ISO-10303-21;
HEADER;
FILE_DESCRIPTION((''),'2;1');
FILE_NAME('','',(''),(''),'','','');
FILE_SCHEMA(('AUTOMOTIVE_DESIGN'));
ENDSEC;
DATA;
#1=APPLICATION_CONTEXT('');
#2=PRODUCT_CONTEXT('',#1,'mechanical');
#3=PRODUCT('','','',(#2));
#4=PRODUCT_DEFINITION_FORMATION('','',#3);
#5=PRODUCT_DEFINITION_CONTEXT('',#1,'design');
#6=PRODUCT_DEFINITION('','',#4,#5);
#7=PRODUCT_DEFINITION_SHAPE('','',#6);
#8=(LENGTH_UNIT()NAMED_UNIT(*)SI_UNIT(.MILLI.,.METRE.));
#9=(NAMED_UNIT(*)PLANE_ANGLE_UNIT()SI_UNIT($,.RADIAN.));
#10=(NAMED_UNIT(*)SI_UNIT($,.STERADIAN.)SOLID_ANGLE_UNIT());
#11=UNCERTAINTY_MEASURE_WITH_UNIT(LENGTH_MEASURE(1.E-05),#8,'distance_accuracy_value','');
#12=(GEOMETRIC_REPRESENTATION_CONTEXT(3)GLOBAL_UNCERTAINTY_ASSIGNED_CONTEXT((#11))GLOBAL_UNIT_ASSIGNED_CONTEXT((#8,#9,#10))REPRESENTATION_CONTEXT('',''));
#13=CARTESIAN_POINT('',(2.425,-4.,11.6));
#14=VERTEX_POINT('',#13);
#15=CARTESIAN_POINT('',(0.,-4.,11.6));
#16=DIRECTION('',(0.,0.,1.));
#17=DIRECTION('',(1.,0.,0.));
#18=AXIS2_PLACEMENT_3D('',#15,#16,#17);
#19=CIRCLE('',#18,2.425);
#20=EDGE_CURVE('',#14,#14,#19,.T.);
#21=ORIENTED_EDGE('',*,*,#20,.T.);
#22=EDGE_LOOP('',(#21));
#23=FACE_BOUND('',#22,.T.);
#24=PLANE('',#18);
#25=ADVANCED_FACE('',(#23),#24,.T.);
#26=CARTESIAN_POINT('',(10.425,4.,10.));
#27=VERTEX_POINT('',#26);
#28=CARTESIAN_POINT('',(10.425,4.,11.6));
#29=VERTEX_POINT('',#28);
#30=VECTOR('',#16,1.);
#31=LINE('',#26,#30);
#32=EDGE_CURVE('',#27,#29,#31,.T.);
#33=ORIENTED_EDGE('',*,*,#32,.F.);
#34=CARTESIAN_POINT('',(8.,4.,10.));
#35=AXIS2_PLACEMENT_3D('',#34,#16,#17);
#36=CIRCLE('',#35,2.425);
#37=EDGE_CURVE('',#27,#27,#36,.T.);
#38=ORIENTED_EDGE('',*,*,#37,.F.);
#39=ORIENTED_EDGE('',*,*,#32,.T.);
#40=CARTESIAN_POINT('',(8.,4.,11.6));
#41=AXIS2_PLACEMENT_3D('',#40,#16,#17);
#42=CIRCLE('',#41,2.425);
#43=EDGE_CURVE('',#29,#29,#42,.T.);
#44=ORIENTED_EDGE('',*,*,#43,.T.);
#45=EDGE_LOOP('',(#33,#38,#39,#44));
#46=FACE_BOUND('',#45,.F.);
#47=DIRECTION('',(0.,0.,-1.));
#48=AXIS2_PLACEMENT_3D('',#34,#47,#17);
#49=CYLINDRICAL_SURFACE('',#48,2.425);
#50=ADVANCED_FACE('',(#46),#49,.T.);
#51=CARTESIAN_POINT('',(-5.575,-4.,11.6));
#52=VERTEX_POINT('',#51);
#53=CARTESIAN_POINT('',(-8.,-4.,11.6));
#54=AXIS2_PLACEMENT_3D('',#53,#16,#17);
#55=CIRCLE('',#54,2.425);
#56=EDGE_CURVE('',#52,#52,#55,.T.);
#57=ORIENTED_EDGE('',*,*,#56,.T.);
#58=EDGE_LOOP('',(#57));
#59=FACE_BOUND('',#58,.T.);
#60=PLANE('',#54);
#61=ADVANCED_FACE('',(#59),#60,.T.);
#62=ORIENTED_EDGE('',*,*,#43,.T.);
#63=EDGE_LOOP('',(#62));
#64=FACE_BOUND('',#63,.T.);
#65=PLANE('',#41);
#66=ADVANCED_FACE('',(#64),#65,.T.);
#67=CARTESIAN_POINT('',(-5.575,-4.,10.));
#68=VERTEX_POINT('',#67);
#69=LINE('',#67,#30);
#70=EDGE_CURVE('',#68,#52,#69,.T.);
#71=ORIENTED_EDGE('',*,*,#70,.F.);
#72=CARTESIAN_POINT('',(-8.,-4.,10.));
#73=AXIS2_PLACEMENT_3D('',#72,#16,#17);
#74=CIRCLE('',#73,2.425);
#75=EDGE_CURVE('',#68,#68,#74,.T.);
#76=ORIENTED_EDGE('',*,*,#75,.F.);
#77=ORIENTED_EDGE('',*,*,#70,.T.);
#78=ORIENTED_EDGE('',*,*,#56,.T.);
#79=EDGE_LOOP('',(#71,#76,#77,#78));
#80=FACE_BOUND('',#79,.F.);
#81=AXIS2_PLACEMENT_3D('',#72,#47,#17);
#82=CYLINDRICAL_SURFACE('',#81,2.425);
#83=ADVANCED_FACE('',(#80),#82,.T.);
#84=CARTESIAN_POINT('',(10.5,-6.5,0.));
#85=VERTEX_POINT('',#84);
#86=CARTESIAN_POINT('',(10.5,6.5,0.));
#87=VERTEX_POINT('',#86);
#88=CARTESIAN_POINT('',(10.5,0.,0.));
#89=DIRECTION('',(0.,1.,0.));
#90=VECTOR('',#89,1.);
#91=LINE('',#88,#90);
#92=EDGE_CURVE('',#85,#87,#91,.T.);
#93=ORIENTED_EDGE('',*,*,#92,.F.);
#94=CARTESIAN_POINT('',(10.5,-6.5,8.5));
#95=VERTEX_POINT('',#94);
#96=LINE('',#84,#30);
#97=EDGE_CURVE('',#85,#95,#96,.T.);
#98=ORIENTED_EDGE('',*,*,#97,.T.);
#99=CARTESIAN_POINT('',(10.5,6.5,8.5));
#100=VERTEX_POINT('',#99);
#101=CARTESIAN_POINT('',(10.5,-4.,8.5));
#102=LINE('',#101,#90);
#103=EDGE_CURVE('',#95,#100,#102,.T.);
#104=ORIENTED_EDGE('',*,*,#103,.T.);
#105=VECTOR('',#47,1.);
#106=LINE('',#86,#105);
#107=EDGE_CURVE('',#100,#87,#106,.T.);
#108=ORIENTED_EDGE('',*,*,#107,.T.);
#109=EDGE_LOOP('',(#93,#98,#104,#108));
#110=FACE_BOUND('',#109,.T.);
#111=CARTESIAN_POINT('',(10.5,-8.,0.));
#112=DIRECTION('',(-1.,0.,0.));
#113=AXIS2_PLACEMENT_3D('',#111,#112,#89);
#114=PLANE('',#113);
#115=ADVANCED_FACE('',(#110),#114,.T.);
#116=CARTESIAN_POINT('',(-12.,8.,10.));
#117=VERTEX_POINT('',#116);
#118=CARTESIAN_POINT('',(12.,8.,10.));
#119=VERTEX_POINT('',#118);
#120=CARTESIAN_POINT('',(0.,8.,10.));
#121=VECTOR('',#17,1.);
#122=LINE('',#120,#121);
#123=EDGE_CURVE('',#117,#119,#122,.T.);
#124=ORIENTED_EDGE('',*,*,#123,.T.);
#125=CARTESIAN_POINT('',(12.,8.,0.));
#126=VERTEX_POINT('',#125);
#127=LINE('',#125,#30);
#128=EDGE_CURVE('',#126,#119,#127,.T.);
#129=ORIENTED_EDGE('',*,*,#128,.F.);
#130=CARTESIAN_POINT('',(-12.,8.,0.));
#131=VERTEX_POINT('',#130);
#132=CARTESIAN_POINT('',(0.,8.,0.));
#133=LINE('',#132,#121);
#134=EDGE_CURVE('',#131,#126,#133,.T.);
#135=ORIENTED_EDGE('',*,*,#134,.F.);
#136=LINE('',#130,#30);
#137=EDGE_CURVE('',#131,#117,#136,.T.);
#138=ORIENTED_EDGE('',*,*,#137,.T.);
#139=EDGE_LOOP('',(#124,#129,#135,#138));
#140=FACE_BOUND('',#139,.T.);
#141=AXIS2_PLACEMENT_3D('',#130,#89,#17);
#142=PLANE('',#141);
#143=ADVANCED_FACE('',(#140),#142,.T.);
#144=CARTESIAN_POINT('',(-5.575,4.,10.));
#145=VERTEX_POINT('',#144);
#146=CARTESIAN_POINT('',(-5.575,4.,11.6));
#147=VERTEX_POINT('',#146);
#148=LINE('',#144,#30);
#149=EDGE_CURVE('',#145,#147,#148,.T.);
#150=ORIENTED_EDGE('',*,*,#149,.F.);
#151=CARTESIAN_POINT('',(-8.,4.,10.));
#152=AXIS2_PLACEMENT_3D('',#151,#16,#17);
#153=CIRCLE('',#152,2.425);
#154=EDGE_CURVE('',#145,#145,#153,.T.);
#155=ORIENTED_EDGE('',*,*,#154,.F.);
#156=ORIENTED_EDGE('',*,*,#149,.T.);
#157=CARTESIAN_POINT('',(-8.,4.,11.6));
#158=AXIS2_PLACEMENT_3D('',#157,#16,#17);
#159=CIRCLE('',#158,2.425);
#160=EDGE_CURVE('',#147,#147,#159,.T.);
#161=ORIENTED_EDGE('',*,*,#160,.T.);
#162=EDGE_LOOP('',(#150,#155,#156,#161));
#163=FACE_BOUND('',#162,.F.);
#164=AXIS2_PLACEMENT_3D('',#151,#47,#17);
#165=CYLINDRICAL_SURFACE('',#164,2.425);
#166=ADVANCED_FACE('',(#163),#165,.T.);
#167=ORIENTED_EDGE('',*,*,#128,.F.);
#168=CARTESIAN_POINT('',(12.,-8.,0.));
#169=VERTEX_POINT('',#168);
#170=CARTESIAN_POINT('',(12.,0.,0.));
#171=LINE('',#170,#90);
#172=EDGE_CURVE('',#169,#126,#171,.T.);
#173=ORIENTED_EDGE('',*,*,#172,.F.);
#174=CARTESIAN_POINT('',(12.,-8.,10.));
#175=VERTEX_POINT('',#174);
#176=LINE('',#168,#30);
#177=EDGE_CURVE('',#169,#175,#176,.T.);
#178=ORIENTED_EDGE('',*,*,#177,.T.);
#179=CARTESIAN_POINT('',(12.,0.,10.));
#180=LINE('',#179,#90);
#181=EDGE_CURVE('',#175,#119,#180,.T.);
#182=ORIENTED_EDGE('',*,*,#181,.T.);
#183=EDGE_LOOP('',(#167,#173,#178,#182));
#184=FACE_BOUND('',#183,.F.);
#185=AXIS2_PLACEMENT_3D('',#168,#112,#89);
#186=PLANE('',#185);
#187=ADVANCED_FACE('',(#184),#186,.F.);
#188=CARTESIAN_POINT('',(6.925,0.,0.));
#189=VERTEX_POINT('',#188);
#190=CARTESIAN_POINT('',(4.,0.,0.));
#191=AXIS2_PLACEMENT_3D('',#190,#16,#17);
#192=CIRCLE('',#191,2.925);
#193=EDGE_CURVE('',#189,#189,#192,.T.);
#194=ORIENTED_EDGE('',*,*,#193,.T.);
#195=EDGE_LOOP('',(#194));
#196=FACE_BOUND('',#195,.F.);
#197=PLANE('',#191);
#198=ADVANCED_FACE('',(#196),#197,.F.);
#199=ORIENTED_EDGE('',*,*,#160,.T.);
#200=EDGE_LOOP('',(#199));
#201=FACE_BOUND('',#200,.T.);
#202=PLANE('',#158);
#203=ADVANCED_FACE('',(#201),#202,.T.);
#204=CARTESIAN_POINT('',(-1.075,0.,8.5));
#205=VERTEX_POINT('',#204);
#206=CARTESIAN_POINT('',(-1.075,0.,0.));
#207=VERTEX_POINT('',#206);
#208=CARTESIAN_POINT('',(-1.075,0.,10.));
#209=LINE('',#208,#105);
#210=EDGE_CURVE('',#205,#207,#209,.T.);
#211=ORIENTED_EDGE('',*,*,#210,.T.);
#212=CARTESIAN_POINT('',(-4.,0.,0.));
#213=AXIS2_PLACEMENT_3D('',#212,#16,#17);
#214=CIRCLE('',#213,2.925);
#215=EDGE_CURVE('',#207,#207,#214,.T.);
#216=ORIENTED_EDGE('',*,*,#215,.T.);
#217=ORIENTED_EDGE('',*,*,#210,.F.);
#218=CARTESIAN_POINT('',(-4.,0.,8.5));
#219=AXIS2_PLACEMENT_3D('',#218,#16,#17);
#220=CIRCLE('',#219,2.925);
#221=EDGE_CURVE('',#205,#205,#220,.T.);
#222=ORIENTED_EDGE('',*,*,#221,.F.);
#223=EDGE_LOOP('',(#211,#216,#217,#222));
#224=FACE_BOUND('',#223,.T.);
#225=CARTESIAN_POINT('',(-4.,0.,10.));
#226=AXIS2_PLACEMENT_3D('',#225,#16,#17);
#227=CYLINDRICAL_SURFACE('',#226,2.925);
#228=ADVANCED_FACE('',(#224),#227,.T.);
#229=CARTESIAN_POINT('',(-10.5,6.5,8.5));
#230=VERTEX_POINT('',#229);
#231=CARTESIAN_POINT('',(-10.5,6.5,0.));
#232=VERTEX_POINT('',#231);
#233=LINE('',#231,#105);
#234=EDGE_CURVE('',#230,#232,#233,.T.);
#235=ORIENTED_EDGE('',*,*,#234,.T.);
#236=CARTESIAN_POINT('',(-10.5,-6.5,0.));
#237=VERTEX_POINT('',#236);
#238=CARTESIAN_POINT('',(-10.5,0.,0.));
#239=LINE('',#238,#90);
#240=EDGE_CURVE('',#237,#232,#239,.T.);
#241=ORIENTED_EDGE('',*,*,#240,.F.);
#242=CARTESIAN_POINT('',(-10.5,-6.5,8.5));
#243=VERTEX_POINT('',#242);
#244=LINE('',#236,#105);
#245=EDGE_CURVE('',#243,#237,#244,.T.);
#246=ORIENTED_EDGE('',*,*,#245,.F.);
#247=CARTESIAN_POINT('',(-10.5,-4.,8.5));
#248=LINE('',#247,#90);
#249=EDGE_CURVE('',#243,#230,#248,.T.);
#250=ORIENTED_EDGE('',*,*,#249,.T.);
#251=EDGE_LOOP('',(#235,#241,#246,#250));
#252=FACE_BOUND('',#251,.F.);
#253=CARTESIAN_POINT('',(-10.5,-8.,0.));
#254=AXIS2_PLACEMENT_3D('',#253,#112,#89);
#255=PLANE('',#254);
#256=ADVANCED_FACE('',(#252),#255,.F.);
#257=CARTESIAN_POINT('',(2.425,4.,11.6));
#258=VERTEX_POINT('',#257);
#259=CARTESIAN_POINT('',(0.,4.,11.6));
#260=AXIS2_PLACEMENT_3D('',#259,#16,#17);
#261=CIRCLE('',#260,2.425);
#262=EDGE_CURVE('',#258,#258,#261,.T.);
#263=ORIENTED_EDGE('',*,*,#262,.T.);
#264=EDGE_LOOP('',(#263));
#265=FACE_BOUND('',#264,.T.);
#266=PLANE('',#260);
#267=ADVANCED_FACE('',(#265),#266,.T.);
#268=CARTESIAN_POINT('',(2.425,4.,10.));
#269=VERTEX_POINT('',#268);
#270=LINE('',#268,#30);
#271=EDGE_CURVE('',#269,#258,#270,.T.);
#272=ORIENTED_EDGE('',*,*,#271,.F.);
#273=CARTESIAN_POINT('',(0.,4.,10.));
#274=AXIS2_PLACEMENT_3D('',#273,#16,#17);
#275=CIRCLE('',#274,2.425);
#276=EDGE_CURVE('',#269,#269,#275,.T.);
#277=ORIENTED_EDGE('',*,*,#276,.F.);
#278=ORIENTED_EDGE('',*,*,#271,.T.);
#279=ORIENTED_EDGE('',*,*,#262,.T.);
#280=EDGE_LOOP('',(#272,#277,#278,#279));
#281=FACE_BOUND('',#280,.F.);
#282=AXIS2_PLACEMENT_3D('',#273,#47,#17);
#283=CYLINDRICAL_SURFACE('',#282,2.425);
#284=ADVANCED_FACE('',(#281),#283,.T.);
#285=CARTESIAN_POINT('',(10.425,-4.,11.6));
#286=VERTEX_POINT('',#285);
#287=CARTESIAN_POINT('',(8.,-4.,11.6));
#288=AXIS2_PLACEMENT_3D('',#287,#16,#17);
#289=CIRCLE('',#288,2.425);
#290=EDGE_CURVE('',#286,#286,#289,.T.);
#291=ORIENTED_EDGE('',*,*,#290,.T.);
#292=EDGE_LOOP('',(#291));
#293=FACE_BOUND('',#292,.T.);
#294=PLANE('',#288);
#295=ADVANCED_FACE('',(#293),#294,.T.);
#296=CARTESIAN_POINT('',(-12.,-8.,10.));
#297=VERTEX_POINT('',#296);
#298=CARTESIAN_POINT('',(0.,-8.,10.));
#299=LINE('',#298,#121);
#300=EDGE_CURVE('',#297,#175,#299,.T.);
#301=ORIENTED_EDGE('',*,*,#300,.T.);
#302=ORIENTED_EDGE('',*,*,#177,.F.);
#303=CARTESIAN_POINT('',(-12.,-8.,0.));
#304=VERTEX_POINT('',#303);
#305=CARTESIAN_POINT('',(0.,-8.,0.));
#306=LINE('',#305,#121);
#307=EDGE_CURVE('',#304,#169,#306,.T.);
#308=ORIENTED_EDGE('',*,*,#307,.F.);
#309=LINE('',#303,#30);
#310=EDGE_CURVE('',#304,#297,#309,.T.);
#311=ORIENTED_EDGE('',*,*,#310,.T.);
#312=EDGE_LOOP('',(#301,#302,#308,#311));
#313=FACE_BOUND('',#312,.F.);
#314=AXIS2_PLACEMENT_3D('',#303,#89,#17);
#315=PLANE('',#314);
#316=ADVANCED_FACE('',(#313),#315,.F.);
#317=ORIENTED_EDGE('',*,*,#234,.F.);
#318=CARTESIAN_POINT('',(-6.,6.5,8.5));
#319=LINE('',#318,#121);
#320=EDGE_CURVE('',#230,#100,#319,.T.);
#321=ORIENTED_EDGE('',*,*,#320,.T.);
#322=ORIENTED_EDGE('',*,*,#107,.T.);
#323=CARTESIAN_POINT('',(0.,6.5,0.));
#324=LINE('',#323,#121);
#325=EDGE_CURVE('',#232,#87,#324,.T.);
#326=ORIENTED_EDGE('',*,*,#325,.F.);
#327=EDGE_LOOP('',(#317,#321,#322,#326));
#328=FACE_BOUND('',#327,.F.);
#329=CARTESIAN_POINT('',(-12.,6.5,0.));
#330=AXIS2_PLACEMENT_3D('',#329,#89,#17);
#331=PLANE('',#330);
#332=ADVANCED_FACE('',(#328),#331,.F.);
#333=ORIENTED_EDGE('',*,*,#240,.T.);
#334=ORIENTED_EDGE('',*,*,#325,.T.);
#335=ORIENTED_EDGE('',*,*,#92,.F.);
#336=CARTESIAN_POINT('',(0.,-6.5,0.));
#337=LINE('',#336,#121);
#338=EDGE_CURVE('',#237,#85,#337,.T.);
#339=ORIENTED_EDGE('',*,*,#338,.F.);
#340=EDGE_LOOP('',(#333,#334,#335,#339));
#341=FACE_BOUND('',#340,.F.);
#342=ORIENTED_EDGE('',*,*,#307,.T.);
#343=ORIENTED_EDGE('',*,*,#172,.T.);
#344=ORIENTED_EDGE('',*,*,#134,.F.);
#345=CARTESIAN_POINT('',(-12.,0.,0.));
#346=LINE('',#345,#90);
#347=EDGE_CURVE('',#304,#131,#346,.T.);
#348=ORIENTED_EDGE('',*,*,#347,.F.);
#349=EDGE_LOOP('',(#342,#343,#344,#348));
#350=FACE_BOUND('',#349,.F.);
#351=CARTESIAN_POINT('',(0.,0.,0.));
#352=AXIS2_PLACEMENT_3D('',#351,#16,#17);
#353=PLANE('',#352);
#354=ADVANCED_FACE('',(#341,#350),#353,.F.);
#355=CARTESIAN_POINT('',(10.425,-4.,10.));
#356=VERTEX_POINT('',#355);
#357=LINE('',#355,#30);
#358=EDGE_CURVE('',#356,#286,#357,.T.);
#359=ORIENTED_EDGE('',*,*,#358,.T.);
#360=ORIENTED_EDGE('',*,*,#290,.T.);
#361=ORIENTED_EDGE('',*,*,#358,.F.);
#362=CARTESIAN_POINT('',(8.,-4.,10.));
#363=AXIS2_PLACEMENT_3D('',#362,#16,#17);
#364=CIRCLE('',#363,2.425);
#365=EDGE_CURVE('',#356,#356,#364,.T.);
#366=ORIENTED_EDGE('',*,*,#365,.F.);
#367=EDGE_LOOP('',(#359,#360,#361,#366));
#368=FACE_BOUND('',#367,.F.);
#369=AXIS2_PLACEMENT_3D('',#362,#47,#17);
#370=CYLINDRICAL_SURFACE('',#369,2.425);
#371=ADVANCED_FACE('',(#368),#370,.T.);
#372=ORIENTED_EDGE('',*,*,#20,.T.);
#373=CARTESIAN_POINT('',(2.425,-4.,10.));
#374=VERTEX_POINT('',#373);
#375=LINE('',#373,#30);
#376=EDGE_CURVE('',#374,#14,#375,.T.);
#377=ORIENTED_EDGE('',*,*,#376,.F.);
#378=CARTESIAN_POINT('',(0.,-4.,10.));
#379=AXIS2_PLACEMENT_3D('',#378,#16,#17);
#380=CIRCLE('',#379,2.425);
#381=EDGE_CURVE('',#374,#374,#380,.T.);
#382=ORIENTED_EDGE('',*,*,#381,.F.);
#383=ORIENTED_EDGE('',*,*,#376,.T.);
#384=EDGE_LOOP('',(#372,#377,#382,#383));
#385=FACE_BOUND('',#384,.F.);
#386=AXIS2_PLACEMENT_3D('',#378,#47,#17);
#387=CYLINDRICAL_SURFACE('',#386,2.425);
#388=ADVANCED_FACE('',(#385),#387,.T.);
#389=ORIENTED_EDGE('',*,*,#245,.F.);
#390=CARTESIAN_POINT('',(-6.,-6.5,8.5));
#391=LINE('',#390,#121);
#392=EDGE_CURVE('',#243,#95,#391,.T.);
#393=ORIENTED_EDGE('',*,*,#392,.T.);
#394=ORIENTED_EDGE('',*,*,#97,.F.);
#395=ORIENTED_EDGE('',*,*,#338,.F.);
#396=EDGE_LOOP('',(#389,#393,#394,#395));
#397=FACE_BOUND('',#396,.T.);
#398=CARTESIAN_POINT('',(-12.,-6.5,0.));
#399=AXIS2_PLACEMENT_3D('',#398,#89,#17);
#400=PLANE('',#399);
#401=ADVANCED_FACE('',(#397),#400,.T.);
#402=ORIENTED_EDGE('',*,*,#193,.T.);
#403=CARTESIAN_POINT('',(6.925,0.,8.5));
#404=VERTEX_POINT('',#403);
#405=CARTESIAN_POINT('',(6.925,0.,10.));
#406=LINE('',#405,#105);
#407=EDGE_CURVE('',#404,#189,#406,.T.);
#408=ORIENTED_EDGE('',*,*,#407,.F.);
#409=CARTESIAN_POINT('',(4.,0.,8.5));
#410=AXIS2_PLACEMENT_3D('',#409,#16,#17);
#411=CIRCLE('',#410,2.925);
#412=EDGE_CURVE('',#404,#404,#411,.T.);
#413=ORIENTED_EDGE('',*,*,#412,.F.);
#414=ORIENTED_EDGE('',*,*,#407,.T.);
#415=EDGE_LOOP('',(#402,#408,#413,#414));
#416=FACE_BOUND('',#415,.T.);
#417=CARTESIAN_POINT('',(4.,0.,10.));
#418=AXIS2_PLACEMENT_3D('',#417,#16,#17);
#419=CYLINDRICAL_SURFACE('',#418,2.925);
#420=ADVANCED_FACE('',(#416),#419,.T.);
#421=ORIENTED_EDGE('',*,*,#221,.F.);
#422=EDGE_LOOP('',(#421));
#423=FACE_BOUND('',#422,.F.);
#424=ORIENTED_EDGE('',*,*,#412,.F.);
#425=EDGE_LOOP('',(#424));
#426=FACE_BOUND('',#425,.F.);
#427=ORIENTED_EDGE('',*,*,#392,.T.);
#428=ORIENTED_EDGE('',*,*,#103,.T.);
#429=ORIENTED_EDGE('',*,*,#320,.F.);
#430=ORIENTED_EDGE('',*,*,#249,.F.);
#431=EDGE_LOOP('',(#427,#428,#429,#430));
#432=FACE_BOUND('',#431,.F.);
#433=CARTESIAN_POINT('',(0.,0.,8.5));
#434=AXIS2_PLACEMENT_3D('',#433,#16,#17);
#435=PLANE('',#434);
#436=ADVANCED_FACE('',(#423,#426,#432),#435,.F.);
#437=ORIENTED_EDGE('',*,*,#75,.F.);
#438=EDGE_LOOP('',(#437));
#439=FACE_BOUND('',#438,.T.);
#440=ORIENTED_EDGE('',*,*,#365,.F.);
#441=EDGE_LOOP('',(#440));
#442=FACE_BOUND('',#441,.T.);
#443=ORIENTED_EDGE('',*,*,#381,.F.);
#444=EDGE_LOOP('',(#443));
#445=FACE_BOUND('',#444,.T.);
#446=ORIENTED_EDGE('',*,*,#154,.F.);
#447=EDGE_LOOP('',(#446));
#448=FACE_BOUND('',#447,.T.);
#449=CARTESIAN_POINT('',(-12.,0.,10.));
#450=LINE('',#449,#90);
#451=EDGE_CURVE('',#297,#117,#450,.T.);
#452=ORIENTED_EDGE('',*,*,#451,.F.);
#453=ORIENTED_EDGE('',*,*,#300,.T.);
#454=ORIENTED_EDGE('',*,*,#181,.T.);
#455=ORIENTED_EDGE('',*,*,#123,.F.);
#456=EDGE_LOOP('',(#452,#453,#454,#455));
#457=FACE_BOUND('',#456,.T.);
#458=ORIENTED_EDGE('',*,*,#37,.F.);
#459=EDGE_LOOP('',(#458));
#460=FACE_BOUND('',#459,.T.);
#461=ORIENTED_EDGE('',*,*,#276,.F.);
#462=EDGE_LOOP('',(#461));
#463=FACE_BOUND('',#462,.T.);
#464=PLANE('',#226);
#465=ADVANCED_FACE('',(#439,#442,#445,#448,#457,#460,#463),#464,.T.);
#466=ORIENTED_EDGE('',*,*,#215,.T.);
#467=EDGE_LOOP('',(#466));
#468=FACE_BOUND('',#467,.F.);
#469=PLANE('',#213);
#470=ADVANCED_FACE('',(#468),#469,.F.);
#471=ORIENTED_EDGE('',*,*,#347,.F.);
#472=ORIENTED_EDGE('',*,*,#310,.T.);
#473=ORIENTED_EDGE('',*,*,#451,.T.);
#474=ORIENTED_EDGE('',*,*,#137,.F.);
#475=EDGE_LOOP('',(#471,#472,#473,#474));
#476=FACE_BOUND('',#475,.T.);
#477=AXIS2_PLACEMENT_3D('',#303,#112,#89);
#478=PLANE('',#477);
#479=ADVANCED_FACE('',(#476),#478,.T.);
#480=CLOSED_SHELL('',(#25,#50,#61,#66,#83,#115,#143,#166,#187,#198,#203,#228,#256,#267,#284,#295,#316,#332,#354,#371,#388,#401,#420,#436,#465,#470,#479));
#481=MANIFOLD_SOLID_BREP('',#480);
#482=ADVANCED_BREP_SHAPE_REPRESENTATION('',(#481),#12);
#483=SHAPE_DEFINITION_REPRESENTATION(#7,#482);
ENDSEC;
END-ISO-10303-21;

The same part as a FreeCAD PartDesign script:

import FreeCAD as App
import Part
import Sketcher

V = App.Vector
Q = App.Units.Quantity


def faces_at(feature, points):
    """Names of the faces that lie closest to the given points."""
    faces = feature.Shape.Faces
    near = lambda p: min(range(len(faces)), key=lambda i: faces[i].distToShape(Part.Vertex(*p))[0])
    return sorted({f"Face{near(p) + 1}" for p in points})


def add_polygon(sketch, points):
    """Adds a closed chain of lines whose ends are joined by coincident constraints."""
    first, n = sketch.GeometryCount, len(points)
    for a, b in zip(points, points[1:] + points[:1]):
        sketch.addGeometry(Part.LineSegment(App.Vector(*a, 0), App.Vector(*b, 0)), False)
    for i in range(n):
        sketch.addConstraint(Sketcher.Constraint("Coincident", first + i, 2, first + (i + 1) % n, 1))

doc = App.newDocument("Part")
body = doc.addObject("PartDesign::Body", "Body")

# Sketch on XY plane
sketch1 = body.newObject("Sketcher::SketchObject", "Sketch")
sketch1.AttachmentSupport = (doc.getObject("XY_Plane"), [""])
sketch1.MapMode = "FlatFace"
add_polygon(sketch1, [(-12, 8), (-12, -8), (12, -8), (12, 8)])  # lines 0-3
sketch1.addConstraint([
    Sketcher.Constraint("Vertical", 0),
    Sketcher.Constraint("Horizontal", 1),
    Sketcher.Constraint("Vertical", 2),
    Sketcher.Constraint("Horizontal", 3),
    Sketcher.Constraint("Symmetric", 0, 2, 2, 2, -1, 1),
    Sketcher.Constraint("DistanceX", 1, 1, 1, 2, Q("24 mm")),
    Sketcher.Constraint("DistanceY", 0, 2, 0, 1, Q("16 mm")),
])
pad1 = body.newObject("PartDesign::Pad", "Pad")
pad1.Profile = sketch1
pad1.Length = 10
doc.recompute()

thickness = body.newObject("PartDesign::Thickness", "Thickness")
thickness.Base = (pad1, faces_at(pad1, [(0, 0, 0)]))
thickness.Value = 1.5
thickness.Reversed = True
thickness.Join = "Arc"

# Sketch on XY plane
sketch2 = body.newObject("Sketcher::SketchObject", "Sketch001")
sketch2.AttachmentSupport = (doc.getObject("XY_Plane"), [""])
sketch2.MapMode = "FlatFace"
sketch2.AttachmentOffset = App.Placement(V(0, 0, 10), App.Rotation())
sketch2.addGeometry([
    Part.Circle(V(-8, -4, 0), V(0, 0, 1), 2.425),  # 0
    Part.Circle(V(-8, 4, 0), V(0, 0, 1), 2.425),  # 1
    Part.Circle(V(0, -4, 0), V(0, 0, 1), 2.425),  # 2
    Part.Circle(V(0, 4, 0), V(0, 0, 1), 2.425),  # 3
    Part.Circle(V(8, -4, 0), V(0, 0, 1), 2.425),  # 4
    Part.Circle(V(8, 4, 0), V(0, 0, 1), 2.425),  # 5
], False)
sketch2.addConstraint([
    Sketcher.Constraint("Equal", 0, 1),
    Sketcher.Constraint("Equal", 1, 2),
    Sketcher.Constraint("Equal", 2, 3),
    Sketcher.Constraint("Equal", 3, 4),
    Sketcher.Constraint("Equal", 4, 5),
    Sketcher.Constraint("Symmetric", 2, 3, 3, 3, -1, 1),
    Sketcher.Constraint("Symmetric", 1, 3, 4, 3, -1, 1),
    Sketcher.Constraint("Symmetric", 0, 3, 5, 3, -1, 1),
    Sketcher.Constraint("Symmetric", 0, 3, 4, 3, -2),
    Sketcher.Constraint("PointOnObject", 2, 3, -2),
    Sketcher.Constraint("Horizontal", 0, 3, 2, 3),
    Sketcher.Constraint("Diameter", 0, Q("4.85 mm")),
    Sketcher.Constraint("DistanceX", 0, 3, -1, 1, Q("8 mm")),
    Sketcher.Constraint("DistanceY", 0, 3, -1, 1, Q("4 mm")),
])
pad2 = body.newObject("PartDesign::Pad", "Pad001")
pad2.Profile = sketch2
pad2.Length = 1.6

# Sketch on XY plane
sketch3 = body.newObject("Sketcher::SketchObject", "Sketch002")
sketch3.AttachmentSupport = (doc.getObject("XY_Plane"), [""])
sketch3.MapMode = "FlatFace"
sketch3.AttachmentOffset = App.Placement(V(0, 0, 10), App.Rotation())
sketch3.addGeometry([
    Part.Circle(V(-4, 0, 0), V(0, 0, 1), 2.925),
    Part.Circle(V(4, 0, 0), V(0, 0, 1), 2.925),
], False)
sketch3.addConstraint([
    Sketcher.Constraint("Equal", 0, 1),
    Sketcher.Constraint("Symmetric", 0, 3, 1, 3, -1, 1),
    Sketcher.Constraint("PointOnObject", 0, 3, -1),
    Sketcher.Constraint("Diameter", 0, Q("5.85 mm")),
    Sketcher.Constraint("DistanceX", 0, 3, -1, 1, Q("4 mm")),
])
pad3 = body.newObject("PartDesign::Pad", "Pad002")
pad3.Profile = sketch3
pad3.Length = 10
pad3.Reversed = True

doc.recompute()
